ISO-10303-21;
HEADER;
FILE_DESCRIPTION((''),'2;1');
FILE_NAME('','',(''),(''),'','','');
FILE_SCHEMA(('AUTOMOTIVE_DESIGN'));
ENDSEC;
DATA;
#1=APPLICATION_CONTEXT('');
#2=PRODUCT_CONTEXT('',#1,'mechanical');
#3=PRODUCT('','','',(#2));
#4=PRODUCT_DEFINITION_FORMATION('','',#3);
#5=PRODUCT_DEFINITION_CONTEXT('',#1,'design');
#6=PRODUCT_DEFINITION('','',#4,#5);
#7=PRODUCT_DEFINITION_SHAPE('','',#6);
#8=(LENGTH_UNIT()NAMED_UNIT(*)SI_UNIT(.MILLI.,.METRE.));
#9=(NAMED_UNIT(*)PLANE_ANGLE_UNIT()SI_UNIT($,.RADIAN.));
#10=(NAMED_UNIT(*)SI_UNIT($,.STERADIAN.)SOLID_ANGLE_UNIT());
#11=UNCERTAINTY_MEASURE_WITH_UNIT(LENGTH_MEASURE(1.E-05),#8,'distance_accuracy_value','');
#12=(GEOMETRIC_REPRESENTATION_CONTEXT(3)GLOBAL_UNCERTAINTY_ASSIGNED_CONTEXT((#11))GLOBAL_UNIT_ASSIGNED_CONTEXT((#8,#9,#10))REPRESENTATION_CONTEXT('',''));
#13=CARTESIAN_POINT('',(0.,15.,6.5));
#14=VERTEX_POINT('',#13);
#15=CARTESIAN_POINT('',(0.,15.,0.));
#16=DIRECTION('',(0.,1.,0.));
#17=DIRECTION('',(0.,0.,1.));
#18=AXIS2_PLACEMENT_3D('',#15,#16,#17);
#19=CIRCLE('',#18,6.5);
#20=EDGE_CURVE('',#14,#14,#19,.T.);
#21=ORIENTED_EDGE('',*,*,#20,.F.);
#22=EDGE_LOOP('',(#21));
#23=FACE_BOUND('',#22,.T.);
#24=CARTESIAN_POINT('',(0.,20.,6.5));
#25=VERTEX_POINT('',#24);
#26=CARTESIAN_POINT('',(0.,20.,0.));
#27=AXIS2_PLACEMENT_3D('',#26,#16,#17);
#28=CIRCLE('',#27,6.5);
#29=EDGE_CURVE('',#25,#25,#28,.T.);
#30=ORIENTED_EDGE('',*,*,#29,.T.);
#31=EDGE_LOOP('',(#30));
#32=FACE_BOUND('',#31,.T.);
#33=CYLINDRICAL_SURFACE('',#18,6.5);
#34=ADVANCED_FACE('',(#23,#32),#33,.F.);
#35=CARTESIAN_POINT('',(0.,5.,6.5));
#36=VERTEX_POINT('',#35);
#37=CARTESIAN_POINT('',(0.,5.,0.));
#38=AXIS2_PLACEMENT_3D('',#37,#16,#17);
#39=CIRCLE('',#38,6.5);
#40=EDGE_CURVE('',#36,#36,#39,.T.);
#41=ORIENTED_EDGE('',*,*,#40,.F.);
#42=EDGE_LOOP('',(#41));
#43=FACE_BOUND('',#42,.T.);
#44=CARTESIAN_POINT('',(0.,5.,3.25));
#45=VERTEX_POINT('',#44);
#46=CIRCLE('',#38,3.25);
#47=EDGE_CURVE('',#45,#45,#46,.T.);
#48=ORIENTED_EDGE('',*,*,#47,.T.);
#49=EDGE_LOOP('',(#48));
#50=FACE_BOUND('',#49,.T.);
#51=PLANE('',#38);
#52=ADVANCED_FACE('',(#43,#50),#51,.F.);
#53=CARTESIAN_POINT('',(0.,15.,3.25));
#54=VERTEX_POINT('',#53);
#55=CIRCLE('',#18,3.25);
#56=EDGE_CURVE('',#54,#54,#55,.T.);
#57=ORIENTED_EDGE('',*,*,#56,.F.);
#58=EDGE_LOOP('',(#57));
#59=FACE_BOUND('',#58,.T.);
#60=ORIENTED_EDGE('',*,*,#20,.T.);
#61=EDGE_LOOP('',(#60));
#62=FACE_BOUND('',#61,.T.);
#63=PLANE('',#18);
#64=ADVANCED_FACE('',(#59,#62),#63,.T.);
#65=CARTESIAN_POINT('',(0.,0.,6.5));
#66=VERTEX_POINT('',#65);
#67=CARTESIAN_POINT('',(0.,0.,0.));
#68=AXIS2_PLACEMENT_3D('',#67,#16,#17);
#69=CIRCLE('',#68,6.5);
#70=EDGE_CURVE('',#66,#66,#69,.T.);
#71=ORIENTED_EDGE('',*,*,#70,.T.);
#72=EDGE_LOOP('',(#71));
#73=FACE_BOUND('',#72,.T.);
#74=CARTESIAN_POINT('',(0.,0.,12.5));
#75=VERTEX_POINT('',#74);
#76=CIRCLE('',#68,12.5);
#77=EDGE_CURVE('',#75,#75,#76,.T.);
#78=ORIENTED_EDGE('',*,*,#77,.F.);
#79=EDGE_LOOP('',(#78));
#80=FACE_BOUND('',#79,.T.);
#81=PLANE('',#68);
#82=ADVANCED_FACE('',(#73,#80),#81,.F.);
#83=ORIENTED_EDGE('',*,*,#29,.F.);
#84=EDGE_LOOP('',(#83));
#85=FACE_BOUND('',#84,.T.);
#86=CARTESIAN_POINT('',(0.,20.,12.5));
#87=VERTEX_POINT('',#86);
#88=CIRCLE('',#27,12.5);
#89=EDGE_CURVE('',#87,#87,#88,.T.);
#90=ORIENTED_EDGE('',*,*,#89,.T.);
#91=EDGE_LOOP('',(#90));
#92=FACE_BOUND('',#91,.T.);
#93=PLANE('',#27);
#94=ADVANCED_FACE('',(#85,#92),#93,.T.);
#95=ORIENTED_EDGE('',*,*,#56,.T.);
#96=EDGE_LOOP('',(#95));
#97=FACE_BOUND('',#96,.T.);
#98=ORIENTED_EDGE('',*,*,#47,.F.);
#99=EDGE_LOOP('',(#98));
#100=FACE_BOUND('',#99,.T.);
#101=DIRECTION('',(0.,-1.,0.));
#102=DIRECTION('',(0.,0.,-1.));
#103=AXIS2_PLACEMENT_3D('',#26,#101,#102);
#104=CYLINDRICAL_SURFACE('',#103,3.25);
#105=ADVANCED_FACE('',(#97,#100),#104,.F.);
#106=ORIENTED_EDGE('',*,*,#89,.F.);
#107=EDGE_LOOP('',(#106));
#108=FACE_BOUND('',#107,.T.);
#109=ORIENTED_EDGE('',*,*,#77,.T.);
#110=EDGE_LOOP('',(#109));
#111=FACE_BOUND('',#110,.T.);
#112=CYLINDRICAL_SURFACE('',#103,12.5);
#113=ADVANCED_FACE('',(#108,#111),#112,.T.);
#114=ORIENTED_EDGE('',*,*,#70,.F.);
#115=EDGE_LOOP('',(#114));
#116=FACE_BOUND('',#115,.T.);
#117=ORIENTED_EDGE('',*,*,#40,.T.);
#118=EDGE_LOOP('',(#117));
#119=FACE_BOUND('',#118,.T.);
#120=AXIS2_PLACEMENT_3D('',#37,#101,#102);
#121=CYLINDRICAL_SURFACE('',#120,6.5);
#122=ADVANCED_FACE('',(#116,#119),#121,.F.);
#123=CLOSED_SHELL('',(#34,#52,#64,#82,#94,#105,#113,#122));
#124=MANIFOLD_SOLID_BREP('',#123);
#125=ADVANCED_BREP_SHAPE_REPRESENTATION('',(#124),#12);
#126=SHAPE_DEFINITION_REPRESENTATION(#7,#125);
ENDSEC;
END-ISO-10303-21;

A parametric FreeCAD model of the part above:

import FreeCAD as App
import Part
import Sketcher
from FreeCAD import Vector
Q = App.Units.Quantity

doc = App.newDocument("Part")
body = doc.addObject("PartDesign::Body", "Body")

# Sketch on XZ plane
sketch1 = doc.addObject("Sketcher::SketchObject", "Sketch")
body.addObject(sketch1)
sketch1.AttachmentSupport = (doc.XZ_Plane, [""])
sketch1.MapMode = "FlatFace"
sketch1.addGeometry([
    Part.Circle(Vector(0, 0, 0), Vector(0, 0, 1), 12.5),
    Part.Circle(Vector(0, 0, 0), Vector(0, 0, 1), 3.2),
], False)
sketch1.addConstraint([
    Sketcher.Constraint("Coincident", 0, 3, -1, 1),
    Sketcher.Constraint("Coincident", 1, 3, -1, 1),
    Sketcher.Constraint("Diameter", 0, Q("25 mm")),
    Sketcher.Constraint("Diameter", 1, Q("6.5 mm")),
])
pad1 = doc.addObject("PartDesign::Pad", "Pad")
body.addObject(pad1)
pad1.Profile = sketch1
pad1.Length = 20
pad1.Reversed = True

# Sketch on XZ plane
sketch2 = doc.addObject("Sketcher::SketchObject", "Sketch001")
body.addObject(sketch2)
sketch2.AttachmentSupport = (doc.XZ_Plane, [""])
sketch2.MapMode = "FlatFace"
sketch2.addGeometry(Part.Circle(Vector(0, 0, 0), Vector(0, 0, 1), 6), False)
sketch2.addConstraint([
    Sketcher.Constraint("Coincident", 0, 3, -1, 1),
    Sketcher.Constraint("Diameter", 0, Q("13 mm")),
])
pocket1 = doc.addObject("PartDesign::Pocket", "Pocket")
body.addObject(pocket1)
pocket1.Profile = sketch2
pocket1.Length = 5

# Sketch on XZ plane
sketch3 = doc.addObject("Sketcher::SketchObject", "Sketch002")
body.addObject(sketch3)
sketch3.AttachmentSupport = (doc.XZ_Plane, [""])
sketch3.MapMode = "FlatFace"
sketch3.AttachmentOffset = App.Placement(Vector(0, 0, -20), App.Rotation())
sketch3.addGeometry(Part.Circle(Vector(0, 0, 0), Vector(0, 0, 1), 6), False)
sketch3.addConstraint([
    Sketcher.Constraint("Coincident", 0, 3, -1, 1),
    Sketcher.Constraint("Diameter", 0, Q("13 mm")),
])
pocket2 = doc.addObject("PartDesign::Pocket", "Pocket001")
body.addObject(pocket2)
pocket2.Profile = sketch3
pocket2.Length = 5
pocket2.Reversed = True

doc.recompute()
